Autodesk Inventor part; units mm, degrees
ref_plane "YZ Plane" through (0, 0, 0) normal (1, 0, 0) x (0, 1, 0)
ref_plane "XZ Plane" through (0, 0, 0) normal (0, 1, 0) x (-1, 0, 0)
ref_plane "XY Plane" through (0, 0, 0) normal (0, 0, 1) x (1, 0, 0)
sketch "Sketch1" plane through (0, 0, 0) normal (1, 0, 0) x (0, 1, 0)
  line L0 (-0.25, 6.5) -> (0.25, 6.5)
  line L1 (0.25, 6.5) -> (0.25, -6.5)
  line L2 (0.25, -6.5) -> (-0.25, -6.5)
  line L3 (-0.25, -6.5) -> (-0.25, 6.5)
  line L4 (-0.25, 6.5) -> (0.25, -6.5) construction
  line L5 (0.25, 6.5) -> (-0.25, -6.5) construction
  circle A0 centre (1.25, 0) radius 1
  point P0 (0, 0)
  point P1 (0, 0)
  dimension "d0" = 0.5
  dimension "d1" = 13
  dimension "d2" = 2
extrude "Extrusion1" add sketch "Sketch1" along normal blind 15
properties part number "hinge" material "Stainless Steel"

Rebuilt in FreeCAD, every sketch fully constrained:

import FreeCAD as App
import Part
import Sketcher
from FreeCAD import Vector


def add_polygon(sketch, points):
    """Adds a closed chain of lines whose ends are joined by coincident constraints."""
    first, n = sketch.GeometryCount, len(points)
    for a, b in zip(points, points[1:] + points[:1]):
        sketch.addGeometry(Part.LineSegment(App.Vector(*a, 0), App.Vector(*b, 0)), False)
    for i in range(n):
        sketch.addConstraint(Sketcher.Constraint("Coincident", first + i, 2, first + (i + 1) % n, 1))

doc = App.newDocument("Part")
params = doc.addObject("Spreadsheet::Sheet", "Params")
for row, (alias, value) in enumerate([
    ("sketch1_diameter", "2 mm"),
    ("sketch1_height", "13 mm"),
    ("sketch1_width", "0.5 mm"),
    ("pad1_length", "15 mm"),
], start=1):
    params.set(f"A{row}", alias)
    params.set(f"B{row}", "=" + value)
    params.setAlias(f"B{row}", alias)

body = doc.addObject("PartDesign::Body", "Body")
body.AllowCompound = True

# Sketch on YZ plane
sketch1 = body.newObject("Sketcher::SketchObject", "Sketch")
sketch1.AttachmentSupport = (doc.getObject("YZ_Plane"), [""])
sketch1.MapMode = "FlatFace"
sketch1.addGeometry(Part.Circle(Vector(1.2, 0, 0), Vector(0, 0, 1), 1), False)  # 0
add_polygon(sketch1, [(0.2, 6.5), (-0.2, 6.5), (-0.2, -6.5), (0.2, -6.5), (0.2, 0)])  # lines 1-5
sketch1.addConstraint(Sketcher.Constraint("Horizontal", 1))
sketch1.addConstraint(Sketcher.Constraint("Vertical", 2))
sketch1.addConstraint(Sketcher.Constraint("Horizontal", 3))
sketch1.addConstraint(Sketcher.Constraint("Vertical", 4))
sketch1.addConstraint(Sketcher.Constraint("Vertical", 5))
sketch1.addConstraint(Sketcher.Constraint("Symmetric", 1, 2, 3, 2, -1, 1))
sketch1.addConstraint(Sketcher.Constraint("PointOnObject", 0, 3, -1))
sketch1.addConstraint(Sketcher.Constraint("PointOnObject", 4, 2, -1))
sketch1.addConstraint(Sketcher.Constraint("Diameter", 0, 2.0))
sketch1.addConstraint(Sketcher.Constraint("DistanceY", 2, 2, 2, 1, 13.0))
sketch1.addConstraint(Sketcher.Constraint("DistanceX", 1, 2, 1, 1, 0.5))
sketch1.addConstraint(Sketcher.Constraint("DistanceX", 3, 2, 0, 3, 1.0))
sketch1.setExpression("Constraints[13]", "Params.sketch1_diameter")
sketch1.setExpression("Constraints[14]", "Params.sketch1_height")
sketch1.setExpression("Constraints[15]", "Params.sketch1_width")
pad1 = body.newObject("PartDesign::Pad", "Pad")
pad1.Profile = sketch1
pad1.setExpression("Length", "Params.pad1_length")

doc.recompute()
